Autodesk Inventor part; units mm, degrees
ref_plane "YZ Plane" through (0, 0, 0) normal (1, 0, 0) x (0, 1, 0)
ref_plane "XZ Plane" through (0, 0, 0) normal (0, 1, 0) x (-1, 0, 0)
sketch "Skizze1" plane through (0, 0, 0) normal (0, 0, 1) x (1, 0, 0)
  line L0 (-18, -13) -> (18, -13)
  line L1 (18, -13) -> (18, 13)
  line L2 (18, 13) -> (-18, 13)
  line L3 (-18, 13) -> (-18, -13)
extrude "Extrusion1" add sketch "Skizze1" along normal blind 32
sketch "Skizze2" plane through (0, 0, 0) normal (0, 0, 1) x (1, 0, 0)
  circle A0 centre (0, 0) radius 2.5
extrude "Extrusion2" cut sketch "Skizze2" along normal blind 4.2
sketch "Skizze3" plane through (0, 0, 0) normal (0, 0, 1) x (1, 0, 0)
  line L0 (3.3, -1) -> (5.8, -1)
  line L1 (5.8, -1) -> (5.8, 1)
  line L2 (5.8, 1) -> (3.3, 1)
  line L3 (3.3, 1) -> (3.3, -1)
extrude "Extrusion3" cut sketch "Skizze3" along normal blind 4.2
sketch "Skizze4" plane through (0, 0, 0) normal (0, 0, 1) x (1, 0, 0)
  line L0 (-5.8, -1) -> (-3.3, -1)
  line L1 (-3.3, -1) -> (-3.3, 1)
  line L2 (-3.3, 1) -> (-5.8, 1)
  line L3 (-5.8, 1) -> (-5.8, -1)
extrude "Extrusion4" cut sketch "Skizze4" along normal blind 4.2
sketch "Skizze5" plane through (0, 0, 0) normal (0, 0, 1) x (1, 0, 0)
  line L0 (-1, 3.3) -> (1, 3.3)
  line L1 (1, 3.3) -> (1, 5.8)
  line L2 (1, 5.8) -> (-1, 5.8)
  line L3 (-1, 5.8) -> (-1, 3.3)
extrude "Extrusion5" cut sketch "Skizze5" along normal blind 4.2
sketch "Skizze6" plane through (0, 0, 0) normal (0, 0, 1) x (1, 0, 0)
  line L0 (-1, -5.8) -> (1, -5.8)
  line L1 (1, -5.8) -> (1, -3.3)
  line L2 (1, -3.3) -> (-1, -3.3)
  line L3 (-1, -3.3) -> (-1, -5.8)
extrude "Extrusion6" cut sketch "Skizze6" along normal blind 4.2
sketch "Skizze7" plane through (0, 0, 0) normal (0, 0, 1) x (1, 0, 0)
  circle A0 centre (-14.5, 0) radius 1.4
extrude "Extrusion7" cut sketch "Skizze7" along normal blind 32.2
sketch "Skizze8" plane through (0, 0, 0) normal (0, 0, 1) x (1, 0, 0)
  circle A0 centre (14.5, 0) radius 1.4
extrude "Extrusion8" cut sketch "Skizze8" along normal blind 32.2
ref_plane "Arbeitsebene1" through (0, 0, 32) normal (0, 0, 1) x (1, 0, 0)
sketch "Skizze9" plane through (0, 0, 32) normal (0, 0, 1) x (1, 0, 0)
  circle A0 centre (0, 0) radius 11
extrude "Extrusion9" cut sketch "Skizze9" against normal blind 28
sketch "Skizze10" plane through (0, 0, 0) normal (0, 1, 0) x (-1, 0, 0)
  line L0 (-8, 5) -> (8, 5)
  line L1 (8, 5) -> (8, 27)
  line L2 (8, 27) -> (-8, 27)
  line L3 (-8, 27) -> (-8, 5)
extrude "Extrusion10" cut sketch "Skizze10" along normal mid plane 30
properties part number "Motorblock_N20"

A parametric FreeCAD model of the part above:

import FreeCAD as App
import Part
import Sketcher

V = App.Vector
Q = App.Units.Quantity


def add_polygon(sketch, points):
    """Adds a closed chain of lines whose ends are joined by coincident constraints."""
    first, n = sketch.GeometryCount, len(points)
    for a, b in zip(points, points[1:] + points[:1]):
        sketch.addGeometry(Part.LineSegment(App.Vector(*a, 0), App.Vector(*b, 0)), False)
    for i in range(n):
        sketch.addConstraint(Sketcher.Constraint("Coincident", first + i, 2, first + (i + 1) % n, 1))

doc = App.newDocument("Part")
params = doc.addObject("Spreadsheet::Sheet", "Params")
for row, (alias, value) in enumerate([
    ("sketch1_width", "36 mm"),
    ("sketch1_height", "26 mm"),
    ("pad1_length", "32 mm"),
    ("sketch2_diameter", "5 mm"),
    ("pocket1_length", "4.2 mm"),
    ("sketch3_height", "2 mm"),
    ("sketch3_width", "2.5 mm"),
    ("pocket2_length", "4.2 mm"),
    ("sketch4_height", "2 mm"),
    ("sketch4_width", "2.5 mm"),
    ("pocket3_length", "4.2 mm"),
    ("sketch5_width", "2 mm"),
    ("sketch5_height", "2.5 mm"),
    ("pocket4_length", "4.2 mm"),
    ("sketch6_width", "2 mm"),
    ("sketch6_height", "2.5 mm"),
    ("pocket5_length", "4.2 mm"),
    ("sketch7_diameter", "2.8 mm"),
    ("pocket6_length", "32.2 mm"),
    ("sketch8_diameter", "2.8 mm"),
    ("pocket7_length", "32.2 mm"),
    ("sketch9_diameter", "22 mm"),
    ("pocket8_length", "28 mm"),
    ("sketch10_width", "16 mm"),
    ("sketch10_height", "22 mm"),
    ("pocket9_length", "30 mm"),
], start=1):
    params.set(f"A{row}", alias)
    params.set(f"B{row}", "=" + value)
    params.setAlias(f"B{row}", alias)

body = doc.addObject("PartDesign::Body", "Body")

# Sketch on XY plane
sketch1 = body.newObject("Sketcher::SketchObject", "Sketch")
sketch1.AttachmentSupport = (doc.getObject("XY_Plane"), [""])
sketch1.MapMode = "FlatFace"
add_polygon(sketch1, [(-18, 13), (-18, -13), (18, -13), (18, 13)])  # lines 0-3
sketch1.addConstraint([
    Sketcher.Constraint("Vertical", 0),
    Sketcher.Constraint("Horizontal", 1),
    Sketcher.Constraint("Vertical", 2),
    Sketcher.Constraint("Horizontal", 3),
    Sketcher.Constraint("Symmetric", 0, 2, 2, 2, -1, 1),
    Sketcher.Constraint("DistanceX", 1, 1, 1, 2, Q("36 mm")),
    Sketcher.Constraint("DistanceY", 0, 2, 0, 1, Q("26 mm")),
])
sketch1.setExpression("Constraints[9]", "Params.sketch1_width")
sketch1.setExpression("Constraints[10]", "Params.sketch1_height")
pad1 = body.newObject("PartDesign::Pad", "Pad")
pad1.Profile = sketch1
pad1.setExpression("Length", "Params.pad1_length")

# Sketch on XY plane
sketch2 = body.newObject("Sketcher::SketchObject", "Sketch001")
sketch2.AttachmentSupport = (doc.getObject("XY_Plane"), [""])
sketch2.MapMode = "FlatFace"
sketch2.addGeometry(Part.Circle(V(0, 0, 0), V(0, 0, 1), 2.5), False)
sketch2.addConstraint([
    Sketcher.Constraint("Coincident", 0, 3, -1, 1),
    Sketcher.Constraint("Diameter", 0, Q("5 mm")),
])
sketch2.setExpression("Constraints[1]", "Params.sketch2_diameter")
pocket1 = body.newObject("PartDesign::Pocket", "Pocket")
pocket1.Profile = sketch2
pocket1.setExpression("Length", "Params.pocket1_length")
pocket1.Reversed = True

# Sketch on XY plane
sketch3 = body.newObject("Sketcher::SketchObject", "Sketch002")
sketch3.AttachmentSupport = (doc.getObject("XY_Plane"), [""])
sketch3.MapMode = "FlatFace"
add_polygon(sketch3, [(3.3, 1), (3.3, -1), (5.8, -1), (5.8, 1)])  # lines 0-3
sketch3.addConstraint([
    Sketcher.Constraint("Vertical", 0),
    Sketcher.Constraint("Horizontal", 1),
    Sketcher.Constraint("Vertical", 2),
    Sketcher.Constraint("Horizontal", 3),
    Sketcher.Constraint("DistanceY", 0, 2, 0, 1, Q("2 mm")),
    Sketcher.Constraint("DistanceX", 1, 1, 1, 2, Q("2.5 mm")),
    Sketcher.Constraint("DistanceY", 0, 2, -1, 1, Q("1 mm")),
    Sketcher.Constraint("DistanceX", -1, 1, 0, 2, Q("3.3 mm")),
])
sketch3.setExpression("Constraints[8]", "Params.sketch3_height")
sketch3.setExpression("Constraints[9]", "Params.sketch3_width")
pocket2 = body.newObject("PartDesign::Pocket", "Pocket001")
pocket2.Profile = sketch3
pocket2.setExpression("Length", "Params.pocket2_length")
pocket2.Reversed = True

# Sketch on XY plane
sketch4 = body.newObject("Sketcher::SketchObject", "Sketch003")
sketch4.AttachmentSupport = (doc.getObject("XY_Plane"), [""])
sketch4.MapMode = "FlatFace"
add_polygon(sketch4, [(-5.8, 1), (-5.8, -1), (-3.3, -1), (-3.3, 1)])  # lines 0-3
sketch4.addConstraint([
    Sketcher.Constraint("Vertical", 0),
    Sketcher.Constraint("Horizontal", 1),
    Sketcher.Constraint("Vertical", 2),
    Sketcher.Constraint("Horizontal", 3),
    Sketcher.Constraint("DistanceY", 0, 2, 0, 1, Q("2 mm")),
    Sketcher.Constraint("DistanceX", 1, 1, 1, 2, Q("2.5 mm")),
    Sketcher.Constraint("DistanceY", 0, 2, -1, 1, Q("1 mm")),
    Sketcher.Constraint("DistanceX", 0, 2, -1, 1, Q("5.8 mm")),
])
sketch4.setExpression("Constraints[8]", "Params.sketch4_height")
sketch4.setExpression("Constraints[9]", "Params.sketch4_width")
pocket3 = body.newObject("PartDesign::Pocket", "Pocket002")
pocket3.Profile = sketch4
pocket3.setExpression("Length", "Params.pocket3_length")
pocket3.Reversed = True

# Sketch on XY plane
sketch5 = body.newObject("Sketcher::SketchObject", "Sketch004")
sketch5.AttachmentSupport = (doc.getObject("XY_Plane"), [""])
sketch5.MapMode = "FlatFace"
add_polygon(sketch5, [(-1, 5.8), (-1, 3.3), (1, 3.3), (1, 5.8)])  # lines 0-3
sketch5.addConstraint([
    Sketcher.Constraint("Vertical", 0),
    Sketcher.Constraint("Horizontal", 1),
    Sketcher.Constraint("Vertical", 2),
    Sketcher.Constraint("Horizontal", 3),
    Sketcher.Constraint("DistanceX", 1, 1, 1, 2, Q("2 mm")),
    Sketcher.Constraint("DistanceY", 0, 2, 0, 1, Q("2.5 mm")),
    Sketcher.Constraint("DistanceX", 0, 2, -1, 1, Q("1 mm")),
    Sketcher.Constraint("DistanceY", -1, 1, 0, 2, Q("3.3 mm")),
])
sketch5.setExpression("Constraints[8]", "Params.sketch5_width")
sketch5.setExpression("Constraints[9]", "Params.sketch5_height")
pocket4 = body.newObject("PartDesign::Pocket", "Pocket003")
pocket4.Profile = sketch5
pocket4.setExpression("Length", "Params.pocket4_length")
pocket4.Reversed = True

# Sketch on XY plane
sketch6 = body.newObject("Sketcher::SketchObject", "Sketch005")
sketch6.AttachmentSupport = (doc.getObject("XY_Plane"), [""])
sketch6.MapMode = "FlatFace"
add_polygon(sketch6, [(-1, -3.3), (-1, -5.8), (1, -5.8), (1, -3.3)])  # lines 0-3
sketch6.addConstraint([
    Sketcher.Constraint("Vertical", 0),
    Sketcher.Constraint("Horizontal", 1),
    Sketcher.Constraint("Vertical", 2),
    Sketcher.Constraint("Horizontal", 3),
    Sketcher.Constraint("DistanceX", 1, 1, 1, 2, Q("2 mm")),
    Sketcher.Constraint("DistanceY", 0, 2, 0, 1, Q("2.5 mm")),
    Sketcher.Constraint("DistanceX", 0, 2, -1, 1, Q("1 mm")),
    Sketcher.Constraint("DistanceY", 0, 2, -1, 1, Q("5.8 mm")),
])
sketch6.setExpression("Constraints[8]", "Params.sketch6_width")
sketch6.setExpression("Constraints[9]", "Params.sketch6_height")
pocket5 = body.newObject("PartDesign::Pocket", "Pocket004")
pocket5.Profile = sketch6
pocket5.setExpression("Length", "Params.pocket5_length")
pocket5.Reversed = True

# Sketch on XY plane
sketch7 = body.newObject("Sketcher::SketchObject", "Sketch006")
sketch7.AttachmentSupport = (doc.getObject("XY_Plane"), [""])
sketch7.MapMode = "FlatFace"
sketch7.addGeometry(Part.Circle(V(-14.5, 0, 0), V(0, 0, 1), 1.4), False)
sketch7.addConstraint([
    Sketcher.Constraint("PointOnObject", 0, 3, -1),
    Sketcher.Constraint("Diameter", 0, Q("2.8 mm")),
    Sketcher.Constraint("DistanceX", 0, 3, -1, 1, Q("14.5 mm")),
])
sketch7.setExpression("Constraints[1]", "Params.sketch7_diameter")
pocket6 = body.newObject("PartDesign::Pocket", "Pocket005")
pocket6.Profile = sketch7
pocket6.setExpression("Length", "Params.pocket6_length")
pocket6.Reversed = True

# Sketch on XY plane
sketch8 = body.newObject("Sketcher::SketchObject", "Sketch007")
sketch8.AttachmentSupport = (doc.getObject("XY_Plane"), [""])
sketch8.MapMode = "FlatFace"
sketch8.addGeometry(Part.Circle(V(14.5, 0, 0), V(0, 0, 1), 1.4), False)
sketch8.addConstraint([
    Sketcher.Constraint("PointOnObject", 0, 3, -1),
    Sketcher.Constraint("Diameter", 0, Q("2.8 mm")),
    Sketcher.Constraint("DistanceX", -1, 1, 0, 3, Q("14.5 mm")),
])
sketch8.setExpression("Constraints[1]", "Params.sketch8_diameter")
pocket7 = body.newObject("PartDesign::Pocket", "Pocket006")
pocket7.Profile = sketch8
pocket7.setExpression("Length", "Params.pocket7_length")
pocket7.Reversed = True

# Sketch on XY plane
sketch9 = body.newObject("Sketcher::SketchObject", "Sketch008")
sketch9.AttachmentSupport = (doc.getObject("XY_Plane"), [""])
sketch9.MapMode = "FlatFace"
sketch9.AttachmentOffset = App.Placement(V(0, 0, 32), App.Rotation())
sketch9.addGeometry(Part.Circle(V(0, 0, 0), V(0, 0, 1), 11), False)
sketch9.addConstraint([
    Sketcher.Constraint("Coincident", 0, 3, -1, 1),
    Sketcher.Constraint("Diameter", 0, Q("22 mm")),
])
sketch9.setExpression("Constraints[1]", "Params.sketch9_diameter")
pocket8 = body.newObject("PartDesign::Pocket", "Pocket007")
pocket8.Profile = sketch9
pocket8.setExpression("Length", "Params.pocket8_length")

# Sketch on XZ plane
sketch10 = body.newObject("Sketcher::SketchObject", "Sketch009")
sketch10.AttachmentSupport = (doc.getObject("XZ_Plane"), [""])
sketch10.MapMode = "FlatFace"
add_polygon(sketch10, [(8, 27), (8, 5), (-8, 5), (-8, 27)])  # lines 0-3
sketch10.addConstraint([
    Sketcher.Constraint("Vertical", 0),
    Sketcher.Constraint("Horizontal", 1),
    Sketcher.Constraint("Vertical", 2),
    Sketcher.Constraint("Horizontal", 3),
    Sketcher.Constraint("DistanceX", 1, 2, 1, 1, Q("16 mm")),
    Sketcher.Constraint("DistanceY", 0, 2, 0, 1, Q("22 mm")),
    Sketcher.Constraint("DistanceX", -1, 1, 0, 2, Q("8 mm")),
    Sketcher.Constraint("DistanceY", -1, 1, 0, 2, Q("5 mm")),
])
sketch10.setExpression("Constraints[8]", "Params.sketch10_width")
sketch10.setExpression("Constraints[9]", "Params.sketch10_height")
pocket9 = body.newObject("PartDesign::Pocket", "Pocket008")
pocket9.Profile = sketch10
pocket9.setExpression("Length", "Params.pocket9_length")
pocket9.Midplane = True

doc.recompute()
